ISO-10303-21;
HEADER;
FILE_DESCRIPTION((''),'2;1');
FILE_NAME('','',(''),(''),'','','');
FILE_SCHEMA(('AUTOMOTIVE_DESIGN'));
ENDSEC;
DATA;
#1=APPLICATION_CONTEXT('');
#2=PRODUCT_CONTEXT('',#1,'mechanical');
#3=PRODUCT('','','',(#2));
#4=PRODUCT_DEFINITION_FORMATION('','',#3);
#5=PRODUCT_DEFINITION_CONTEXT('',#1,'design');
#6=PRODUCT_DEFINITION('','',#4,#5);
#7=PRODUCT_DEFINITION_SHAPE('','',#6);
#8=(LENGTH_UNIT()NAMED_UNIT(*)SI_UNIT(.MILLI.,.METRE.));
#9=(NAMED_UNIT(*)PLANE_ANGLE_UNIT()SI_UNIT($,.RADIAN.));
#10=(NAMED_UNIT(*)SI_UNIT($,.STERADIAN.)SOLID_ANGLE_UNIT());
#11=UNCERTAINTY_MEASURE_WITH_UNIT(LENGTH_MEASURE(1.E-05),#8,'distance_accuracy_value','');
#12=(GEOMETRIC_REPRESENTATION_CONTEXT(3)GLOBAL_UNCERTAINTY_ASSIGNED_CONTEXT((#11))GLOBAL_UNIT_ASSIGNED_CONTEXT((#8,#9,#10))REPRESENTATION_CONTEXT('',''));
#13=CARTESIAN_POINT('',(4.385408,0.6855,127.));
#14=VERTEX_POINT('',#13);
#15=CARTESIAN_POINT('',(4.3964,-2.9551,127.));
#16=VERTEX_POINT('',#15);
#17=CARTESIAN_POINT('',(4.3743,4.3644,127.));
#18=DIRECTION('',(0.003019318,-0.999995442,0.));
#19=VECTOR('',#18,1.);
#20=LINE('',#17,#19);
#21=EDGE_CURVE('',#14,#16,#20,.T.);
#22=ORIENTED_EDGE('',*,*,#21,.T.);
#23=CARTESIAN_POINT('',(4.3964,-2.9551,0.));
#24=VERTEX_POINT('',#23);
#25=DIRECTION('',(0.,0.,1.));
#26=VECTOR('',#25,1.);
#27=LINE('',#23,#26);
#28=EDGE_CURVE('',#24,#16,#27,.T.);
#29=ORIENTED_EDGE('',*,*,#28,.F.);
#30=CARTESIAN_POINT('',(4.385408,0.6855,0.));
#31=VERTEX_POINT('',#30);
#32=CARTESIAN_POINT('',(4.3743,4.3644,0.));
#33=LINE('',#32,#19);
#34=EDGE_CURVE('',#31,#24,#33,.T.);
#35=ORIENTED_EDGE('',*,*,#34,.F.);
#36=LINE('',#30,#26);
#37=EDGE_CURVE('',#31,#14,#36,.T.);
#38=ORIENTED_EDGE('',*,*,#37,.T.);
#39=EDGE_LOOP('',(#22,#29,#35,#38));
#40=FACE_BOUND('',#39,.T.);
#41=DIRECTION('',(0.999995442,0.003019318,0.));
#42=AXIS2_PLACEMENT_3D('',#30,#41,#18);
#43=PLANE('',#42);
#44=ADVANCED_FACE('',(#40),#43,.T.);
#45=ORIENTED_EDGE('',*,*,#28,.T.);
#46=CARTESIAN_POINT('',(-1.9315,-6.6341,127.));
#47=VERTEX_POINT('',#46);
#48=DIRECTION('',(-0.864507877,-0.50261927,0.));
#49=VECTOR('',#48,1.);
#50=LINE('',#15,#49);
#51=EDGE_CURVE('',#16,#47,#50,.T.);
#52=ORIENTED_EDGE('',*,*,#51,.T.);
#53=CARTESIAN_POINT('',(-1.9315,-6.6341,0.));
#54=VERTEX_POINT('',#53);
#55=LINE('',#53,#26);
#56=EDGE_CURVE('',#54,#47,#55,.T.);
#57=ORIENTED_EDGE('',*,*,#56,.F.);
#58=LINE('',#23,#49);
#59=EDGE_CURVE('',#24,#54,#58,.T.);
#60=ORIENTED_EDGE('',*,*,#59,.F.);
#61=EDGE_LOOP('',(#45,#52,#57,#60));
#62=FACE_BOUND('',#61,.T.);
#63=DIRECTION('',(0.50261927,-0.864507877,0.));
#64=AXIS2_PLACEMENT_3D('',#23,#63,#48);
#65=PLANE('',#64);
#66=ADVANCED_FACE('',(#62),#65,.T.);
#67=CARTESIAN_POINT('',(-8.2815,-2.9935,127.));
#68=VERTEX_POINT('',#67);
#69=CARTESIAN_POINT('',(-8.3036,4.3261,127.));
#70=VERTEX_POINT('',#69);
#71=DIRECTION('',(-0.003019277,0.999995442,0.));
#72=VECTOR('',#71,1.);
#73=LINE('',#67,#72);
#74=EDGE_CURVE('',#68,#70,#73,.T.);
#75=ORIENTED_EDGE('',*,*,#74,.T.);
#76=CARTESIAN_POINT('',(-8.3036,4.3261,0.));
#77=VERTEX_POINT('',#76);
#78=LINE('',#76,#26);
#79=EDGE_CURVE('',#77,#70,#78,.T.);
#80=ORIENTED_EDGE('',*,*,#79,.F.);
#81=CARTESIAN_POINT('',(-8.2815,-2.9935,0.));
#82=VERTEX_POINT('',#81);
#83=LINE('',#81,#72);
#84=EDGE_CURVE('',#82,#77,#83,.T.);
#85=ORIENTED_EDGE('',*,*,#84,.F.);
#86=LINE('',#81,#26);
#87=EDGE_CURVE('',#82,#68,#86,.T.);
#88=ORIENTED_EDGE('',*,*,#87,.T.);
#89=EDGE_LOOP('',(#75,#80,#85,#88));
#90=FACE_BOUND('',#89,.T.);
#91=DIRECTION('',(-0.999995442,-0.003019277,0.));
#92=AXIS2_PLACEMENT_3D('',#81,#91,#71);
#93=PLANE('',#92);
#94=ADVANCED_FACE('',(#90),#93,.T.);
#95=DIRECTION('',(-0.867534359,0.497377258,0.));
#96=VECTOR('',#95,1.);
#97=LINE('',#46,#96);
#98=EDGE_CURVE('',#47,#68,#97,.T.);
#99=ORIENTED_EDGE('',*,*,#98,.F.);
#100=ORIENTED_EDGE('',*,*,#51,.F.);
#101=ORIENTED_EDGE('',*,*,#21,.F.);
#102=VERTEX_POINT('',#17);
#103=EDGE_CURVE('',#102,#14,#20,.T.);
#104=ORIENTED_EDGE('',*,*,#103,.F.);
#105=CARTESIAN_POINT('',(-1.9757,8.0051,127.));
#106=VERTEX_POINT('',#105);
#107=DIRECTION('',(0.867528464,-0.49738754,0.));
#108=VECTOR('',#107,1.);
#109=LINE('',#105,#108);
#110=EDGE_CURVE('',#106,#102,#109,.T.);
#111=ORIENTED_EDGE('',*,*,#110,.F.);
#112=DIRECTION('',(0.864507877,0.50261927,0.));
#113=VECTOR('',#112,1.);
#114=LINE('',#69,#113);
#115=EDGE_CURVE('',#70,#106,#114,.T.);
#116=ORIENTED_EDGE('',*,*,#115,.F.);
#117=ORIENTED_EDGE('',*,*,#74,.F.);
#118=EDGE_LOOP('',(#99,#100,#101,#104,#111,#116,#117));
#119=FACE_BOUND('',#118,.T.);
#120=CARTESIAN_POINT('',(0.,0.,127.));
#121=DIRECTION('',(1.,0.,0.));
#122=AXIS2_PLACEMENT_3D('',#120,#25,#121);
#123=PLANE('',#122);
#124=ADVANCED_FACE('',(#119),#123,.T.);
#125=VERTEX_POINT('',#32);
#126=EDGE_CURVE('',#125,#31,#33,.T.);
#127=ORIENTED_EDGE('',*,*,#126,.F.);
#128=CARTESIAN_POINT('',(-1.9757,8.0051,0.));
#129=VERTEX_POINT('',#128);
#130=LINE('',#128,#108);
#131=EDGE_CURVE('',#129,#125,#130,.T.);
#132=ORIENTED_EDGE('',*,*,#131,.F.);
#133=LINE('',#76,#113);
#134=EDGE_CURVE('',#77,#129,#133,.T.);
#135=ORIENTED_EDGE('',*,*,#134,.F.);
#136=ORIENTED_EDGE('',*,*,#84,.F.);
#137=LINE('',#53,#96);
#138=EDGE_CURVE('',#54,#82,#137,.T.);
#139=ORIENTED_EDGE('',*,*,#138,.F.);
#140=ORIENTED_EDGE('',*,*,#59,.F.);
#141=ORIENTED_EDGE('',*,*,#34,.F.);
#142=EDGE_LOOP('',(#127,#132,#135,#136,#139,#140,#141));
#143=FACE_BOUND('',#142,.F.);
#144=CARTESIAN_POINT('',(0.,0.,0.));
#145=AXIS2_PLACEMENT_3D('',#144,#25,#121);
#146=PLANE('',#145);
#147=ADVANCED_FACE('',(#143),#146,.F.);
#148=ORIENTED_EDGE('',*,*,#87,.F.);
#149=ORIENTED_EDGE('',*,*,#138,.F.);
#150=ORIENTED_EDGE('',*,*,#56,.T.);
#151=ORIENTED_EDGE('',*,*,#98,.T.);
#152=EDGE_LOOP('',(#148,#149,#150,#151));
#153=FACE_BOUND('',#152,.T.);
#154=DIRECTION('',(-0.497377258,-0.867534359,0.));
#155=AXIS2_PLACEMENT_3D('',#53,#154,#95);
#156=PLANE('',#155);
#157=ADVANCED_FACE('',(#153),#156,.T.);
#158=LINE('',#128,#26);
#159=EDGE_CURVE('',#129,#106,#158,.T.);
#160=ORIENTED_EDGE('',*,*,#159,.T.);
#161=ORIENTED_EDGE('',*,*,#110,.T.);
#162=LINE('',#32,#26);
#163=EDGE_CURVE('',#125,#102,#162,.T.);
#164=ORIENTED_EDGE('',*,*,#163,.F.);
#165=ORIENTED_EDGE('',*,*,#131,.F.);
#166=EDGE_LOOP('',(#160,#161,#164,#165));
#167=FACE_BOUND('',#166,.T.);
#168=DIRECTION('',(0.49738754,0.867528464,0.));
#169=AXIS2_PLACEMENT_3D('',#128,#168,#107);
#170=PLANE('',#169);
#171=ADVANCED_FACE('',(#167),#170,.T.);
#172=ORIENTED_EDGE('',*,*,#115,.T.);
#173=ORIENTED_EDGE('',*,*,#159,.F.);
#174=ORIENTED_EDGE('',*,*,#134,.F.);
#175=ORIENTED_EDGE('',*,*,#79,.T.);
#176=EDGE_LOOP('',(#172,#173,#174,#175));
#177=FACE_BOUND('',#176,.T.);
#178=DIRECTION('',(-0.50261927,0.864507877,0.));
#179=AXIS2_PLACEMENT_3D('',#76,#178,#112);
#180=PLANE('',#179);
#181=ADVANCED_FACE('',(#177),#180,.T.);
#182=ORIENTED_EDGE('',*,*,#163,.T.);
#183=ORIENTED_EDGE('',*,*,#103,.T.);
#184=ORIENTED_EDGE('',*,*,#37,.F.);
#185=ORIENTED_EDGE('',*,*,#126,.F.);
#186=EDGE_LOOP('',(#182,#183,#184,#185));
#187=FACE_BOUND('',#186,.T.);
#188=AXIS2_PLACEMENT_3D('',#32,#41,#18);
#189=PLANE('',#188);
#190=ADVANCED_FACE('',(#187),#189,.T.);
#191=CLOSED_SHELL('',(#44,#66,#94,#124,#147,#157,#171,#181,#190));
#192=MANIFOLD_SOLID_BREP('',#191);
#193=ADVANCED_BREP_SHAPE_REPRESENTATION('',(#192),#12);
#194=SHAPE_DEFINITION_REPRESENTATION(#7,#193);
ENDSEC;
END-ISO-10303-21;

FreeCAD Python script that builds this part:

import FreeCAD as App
import Part
import Sketcher
from FreeCAD import Vector
Q = App.Units.Quantity

doc = App.newDocument("Part")
body = doc.addObject("PartDesign::Body", "Body")

# Sketch on XY plane
sketch1 = body.newObject("Sketcher::SketchObject", "Sketch")
sketch1.AttachmentSupport = (doc.getObject("XY_Plane"), [""])
sketch1.MapMode = "FlatFace"
sketch1.addGeometry(Part.LineSegment(Vector(-1.9315, -6.6341, 0), Vector(4.3964, -2.9551, 0)), False)
sketch1.addGeometry(Part.LineSegment(Vector(4.3964, -2.9551, 0), Vector(4.3743, 4.3644, 0)), False)
sketch1.addGeometry(Part.LineSegment(Vector(4.3743, 4.3644, 0), Vector(-1.9757, 8.0051, 0)), False)
sketch1.addGeometry(Part.LineSegment(Vector(-1.9757, 8.0051, 0), Vector(-8.3036, 4.3261, 0)), False)
sketch1.addGeometry(Part.LineSegment(Vector(-8.3036, 4.3261, 0), Vector(-8.2815, -2.9935, 0)), False)
sketch1.addGeometry(Part.LineSegment(Vector(-8.2815, -2.9935, 0), Vector(-1.9315, -6.6341, 0)), False)
sketch1.addConstraint(Sketcher.Constraint("Coincident", 0, 2, 1, 1))
sketch1.addConstraint(Sketcher.Constraint("Coincident", 1, 2, 2, 1))
sketch1.addConstraint(Sketcher.Constraint("Coincident", 2, 2, 3, 1))
sketch1.addConstraint(Sketcher.Constraint("Coincident", 3, 2, 4, 1))
sketch1.addConstraint(Sketcher.Constraint("Coincident", 4, 2, 5, 1))
sketch1.addConstraint(Sketcher.Constraint("Coincident", 5, 2, 0, 1))
sketch1.addConstraint(Sketcher.Constraint("Parallel", 0, 3))
sketch1.addConstraint(Sketcher.Constraint("Parallel", 1, 4))
sketch1.addConstraint(Sketcher.Constraint("Parallel", 2, 5))
sketch1.addConstraint(Sketcher.Constraint("Equal", 0, 1))
sketch1.addConstraint(Sketcher.Constraint("Equal", 1, 2))
sketch1.addConstraint(Sketcher.Constraint("Equal", 2, 3))
sketch1.addConstraint(Sketcher.Constraint("DistanceX", 2, 2, 1, 2, Q("0.25 in")))
sketch1.addConstraint(Sketcher.Constraint("DistanceX", 3, 2, 0, 2, Q("0.5 in")))
sketch1.addConstraint(Sketcher.Constraint("DistanceY", 5, 2, 1, 2, Q("0.433 in")))
sketch1.addConstraint(Sketcher.Constraint("DistanceY", 0, 2, 2, 2, Q("0.4315 in")))
sketch1.addConstraint(Sketcher.Constraint("DistanceX", -1, 1, 0, 2, 4.3964))
sketch1.addConstraint(Sketcher.Constraint("DistanceY", 0, 2, -1, 1, 2.955))
pad1 = body.newObject("PartDesign::Pad", "Pad")
pad1.Profile = sketch1
pad1.Length = Q("5 in")

doc.recompute()
